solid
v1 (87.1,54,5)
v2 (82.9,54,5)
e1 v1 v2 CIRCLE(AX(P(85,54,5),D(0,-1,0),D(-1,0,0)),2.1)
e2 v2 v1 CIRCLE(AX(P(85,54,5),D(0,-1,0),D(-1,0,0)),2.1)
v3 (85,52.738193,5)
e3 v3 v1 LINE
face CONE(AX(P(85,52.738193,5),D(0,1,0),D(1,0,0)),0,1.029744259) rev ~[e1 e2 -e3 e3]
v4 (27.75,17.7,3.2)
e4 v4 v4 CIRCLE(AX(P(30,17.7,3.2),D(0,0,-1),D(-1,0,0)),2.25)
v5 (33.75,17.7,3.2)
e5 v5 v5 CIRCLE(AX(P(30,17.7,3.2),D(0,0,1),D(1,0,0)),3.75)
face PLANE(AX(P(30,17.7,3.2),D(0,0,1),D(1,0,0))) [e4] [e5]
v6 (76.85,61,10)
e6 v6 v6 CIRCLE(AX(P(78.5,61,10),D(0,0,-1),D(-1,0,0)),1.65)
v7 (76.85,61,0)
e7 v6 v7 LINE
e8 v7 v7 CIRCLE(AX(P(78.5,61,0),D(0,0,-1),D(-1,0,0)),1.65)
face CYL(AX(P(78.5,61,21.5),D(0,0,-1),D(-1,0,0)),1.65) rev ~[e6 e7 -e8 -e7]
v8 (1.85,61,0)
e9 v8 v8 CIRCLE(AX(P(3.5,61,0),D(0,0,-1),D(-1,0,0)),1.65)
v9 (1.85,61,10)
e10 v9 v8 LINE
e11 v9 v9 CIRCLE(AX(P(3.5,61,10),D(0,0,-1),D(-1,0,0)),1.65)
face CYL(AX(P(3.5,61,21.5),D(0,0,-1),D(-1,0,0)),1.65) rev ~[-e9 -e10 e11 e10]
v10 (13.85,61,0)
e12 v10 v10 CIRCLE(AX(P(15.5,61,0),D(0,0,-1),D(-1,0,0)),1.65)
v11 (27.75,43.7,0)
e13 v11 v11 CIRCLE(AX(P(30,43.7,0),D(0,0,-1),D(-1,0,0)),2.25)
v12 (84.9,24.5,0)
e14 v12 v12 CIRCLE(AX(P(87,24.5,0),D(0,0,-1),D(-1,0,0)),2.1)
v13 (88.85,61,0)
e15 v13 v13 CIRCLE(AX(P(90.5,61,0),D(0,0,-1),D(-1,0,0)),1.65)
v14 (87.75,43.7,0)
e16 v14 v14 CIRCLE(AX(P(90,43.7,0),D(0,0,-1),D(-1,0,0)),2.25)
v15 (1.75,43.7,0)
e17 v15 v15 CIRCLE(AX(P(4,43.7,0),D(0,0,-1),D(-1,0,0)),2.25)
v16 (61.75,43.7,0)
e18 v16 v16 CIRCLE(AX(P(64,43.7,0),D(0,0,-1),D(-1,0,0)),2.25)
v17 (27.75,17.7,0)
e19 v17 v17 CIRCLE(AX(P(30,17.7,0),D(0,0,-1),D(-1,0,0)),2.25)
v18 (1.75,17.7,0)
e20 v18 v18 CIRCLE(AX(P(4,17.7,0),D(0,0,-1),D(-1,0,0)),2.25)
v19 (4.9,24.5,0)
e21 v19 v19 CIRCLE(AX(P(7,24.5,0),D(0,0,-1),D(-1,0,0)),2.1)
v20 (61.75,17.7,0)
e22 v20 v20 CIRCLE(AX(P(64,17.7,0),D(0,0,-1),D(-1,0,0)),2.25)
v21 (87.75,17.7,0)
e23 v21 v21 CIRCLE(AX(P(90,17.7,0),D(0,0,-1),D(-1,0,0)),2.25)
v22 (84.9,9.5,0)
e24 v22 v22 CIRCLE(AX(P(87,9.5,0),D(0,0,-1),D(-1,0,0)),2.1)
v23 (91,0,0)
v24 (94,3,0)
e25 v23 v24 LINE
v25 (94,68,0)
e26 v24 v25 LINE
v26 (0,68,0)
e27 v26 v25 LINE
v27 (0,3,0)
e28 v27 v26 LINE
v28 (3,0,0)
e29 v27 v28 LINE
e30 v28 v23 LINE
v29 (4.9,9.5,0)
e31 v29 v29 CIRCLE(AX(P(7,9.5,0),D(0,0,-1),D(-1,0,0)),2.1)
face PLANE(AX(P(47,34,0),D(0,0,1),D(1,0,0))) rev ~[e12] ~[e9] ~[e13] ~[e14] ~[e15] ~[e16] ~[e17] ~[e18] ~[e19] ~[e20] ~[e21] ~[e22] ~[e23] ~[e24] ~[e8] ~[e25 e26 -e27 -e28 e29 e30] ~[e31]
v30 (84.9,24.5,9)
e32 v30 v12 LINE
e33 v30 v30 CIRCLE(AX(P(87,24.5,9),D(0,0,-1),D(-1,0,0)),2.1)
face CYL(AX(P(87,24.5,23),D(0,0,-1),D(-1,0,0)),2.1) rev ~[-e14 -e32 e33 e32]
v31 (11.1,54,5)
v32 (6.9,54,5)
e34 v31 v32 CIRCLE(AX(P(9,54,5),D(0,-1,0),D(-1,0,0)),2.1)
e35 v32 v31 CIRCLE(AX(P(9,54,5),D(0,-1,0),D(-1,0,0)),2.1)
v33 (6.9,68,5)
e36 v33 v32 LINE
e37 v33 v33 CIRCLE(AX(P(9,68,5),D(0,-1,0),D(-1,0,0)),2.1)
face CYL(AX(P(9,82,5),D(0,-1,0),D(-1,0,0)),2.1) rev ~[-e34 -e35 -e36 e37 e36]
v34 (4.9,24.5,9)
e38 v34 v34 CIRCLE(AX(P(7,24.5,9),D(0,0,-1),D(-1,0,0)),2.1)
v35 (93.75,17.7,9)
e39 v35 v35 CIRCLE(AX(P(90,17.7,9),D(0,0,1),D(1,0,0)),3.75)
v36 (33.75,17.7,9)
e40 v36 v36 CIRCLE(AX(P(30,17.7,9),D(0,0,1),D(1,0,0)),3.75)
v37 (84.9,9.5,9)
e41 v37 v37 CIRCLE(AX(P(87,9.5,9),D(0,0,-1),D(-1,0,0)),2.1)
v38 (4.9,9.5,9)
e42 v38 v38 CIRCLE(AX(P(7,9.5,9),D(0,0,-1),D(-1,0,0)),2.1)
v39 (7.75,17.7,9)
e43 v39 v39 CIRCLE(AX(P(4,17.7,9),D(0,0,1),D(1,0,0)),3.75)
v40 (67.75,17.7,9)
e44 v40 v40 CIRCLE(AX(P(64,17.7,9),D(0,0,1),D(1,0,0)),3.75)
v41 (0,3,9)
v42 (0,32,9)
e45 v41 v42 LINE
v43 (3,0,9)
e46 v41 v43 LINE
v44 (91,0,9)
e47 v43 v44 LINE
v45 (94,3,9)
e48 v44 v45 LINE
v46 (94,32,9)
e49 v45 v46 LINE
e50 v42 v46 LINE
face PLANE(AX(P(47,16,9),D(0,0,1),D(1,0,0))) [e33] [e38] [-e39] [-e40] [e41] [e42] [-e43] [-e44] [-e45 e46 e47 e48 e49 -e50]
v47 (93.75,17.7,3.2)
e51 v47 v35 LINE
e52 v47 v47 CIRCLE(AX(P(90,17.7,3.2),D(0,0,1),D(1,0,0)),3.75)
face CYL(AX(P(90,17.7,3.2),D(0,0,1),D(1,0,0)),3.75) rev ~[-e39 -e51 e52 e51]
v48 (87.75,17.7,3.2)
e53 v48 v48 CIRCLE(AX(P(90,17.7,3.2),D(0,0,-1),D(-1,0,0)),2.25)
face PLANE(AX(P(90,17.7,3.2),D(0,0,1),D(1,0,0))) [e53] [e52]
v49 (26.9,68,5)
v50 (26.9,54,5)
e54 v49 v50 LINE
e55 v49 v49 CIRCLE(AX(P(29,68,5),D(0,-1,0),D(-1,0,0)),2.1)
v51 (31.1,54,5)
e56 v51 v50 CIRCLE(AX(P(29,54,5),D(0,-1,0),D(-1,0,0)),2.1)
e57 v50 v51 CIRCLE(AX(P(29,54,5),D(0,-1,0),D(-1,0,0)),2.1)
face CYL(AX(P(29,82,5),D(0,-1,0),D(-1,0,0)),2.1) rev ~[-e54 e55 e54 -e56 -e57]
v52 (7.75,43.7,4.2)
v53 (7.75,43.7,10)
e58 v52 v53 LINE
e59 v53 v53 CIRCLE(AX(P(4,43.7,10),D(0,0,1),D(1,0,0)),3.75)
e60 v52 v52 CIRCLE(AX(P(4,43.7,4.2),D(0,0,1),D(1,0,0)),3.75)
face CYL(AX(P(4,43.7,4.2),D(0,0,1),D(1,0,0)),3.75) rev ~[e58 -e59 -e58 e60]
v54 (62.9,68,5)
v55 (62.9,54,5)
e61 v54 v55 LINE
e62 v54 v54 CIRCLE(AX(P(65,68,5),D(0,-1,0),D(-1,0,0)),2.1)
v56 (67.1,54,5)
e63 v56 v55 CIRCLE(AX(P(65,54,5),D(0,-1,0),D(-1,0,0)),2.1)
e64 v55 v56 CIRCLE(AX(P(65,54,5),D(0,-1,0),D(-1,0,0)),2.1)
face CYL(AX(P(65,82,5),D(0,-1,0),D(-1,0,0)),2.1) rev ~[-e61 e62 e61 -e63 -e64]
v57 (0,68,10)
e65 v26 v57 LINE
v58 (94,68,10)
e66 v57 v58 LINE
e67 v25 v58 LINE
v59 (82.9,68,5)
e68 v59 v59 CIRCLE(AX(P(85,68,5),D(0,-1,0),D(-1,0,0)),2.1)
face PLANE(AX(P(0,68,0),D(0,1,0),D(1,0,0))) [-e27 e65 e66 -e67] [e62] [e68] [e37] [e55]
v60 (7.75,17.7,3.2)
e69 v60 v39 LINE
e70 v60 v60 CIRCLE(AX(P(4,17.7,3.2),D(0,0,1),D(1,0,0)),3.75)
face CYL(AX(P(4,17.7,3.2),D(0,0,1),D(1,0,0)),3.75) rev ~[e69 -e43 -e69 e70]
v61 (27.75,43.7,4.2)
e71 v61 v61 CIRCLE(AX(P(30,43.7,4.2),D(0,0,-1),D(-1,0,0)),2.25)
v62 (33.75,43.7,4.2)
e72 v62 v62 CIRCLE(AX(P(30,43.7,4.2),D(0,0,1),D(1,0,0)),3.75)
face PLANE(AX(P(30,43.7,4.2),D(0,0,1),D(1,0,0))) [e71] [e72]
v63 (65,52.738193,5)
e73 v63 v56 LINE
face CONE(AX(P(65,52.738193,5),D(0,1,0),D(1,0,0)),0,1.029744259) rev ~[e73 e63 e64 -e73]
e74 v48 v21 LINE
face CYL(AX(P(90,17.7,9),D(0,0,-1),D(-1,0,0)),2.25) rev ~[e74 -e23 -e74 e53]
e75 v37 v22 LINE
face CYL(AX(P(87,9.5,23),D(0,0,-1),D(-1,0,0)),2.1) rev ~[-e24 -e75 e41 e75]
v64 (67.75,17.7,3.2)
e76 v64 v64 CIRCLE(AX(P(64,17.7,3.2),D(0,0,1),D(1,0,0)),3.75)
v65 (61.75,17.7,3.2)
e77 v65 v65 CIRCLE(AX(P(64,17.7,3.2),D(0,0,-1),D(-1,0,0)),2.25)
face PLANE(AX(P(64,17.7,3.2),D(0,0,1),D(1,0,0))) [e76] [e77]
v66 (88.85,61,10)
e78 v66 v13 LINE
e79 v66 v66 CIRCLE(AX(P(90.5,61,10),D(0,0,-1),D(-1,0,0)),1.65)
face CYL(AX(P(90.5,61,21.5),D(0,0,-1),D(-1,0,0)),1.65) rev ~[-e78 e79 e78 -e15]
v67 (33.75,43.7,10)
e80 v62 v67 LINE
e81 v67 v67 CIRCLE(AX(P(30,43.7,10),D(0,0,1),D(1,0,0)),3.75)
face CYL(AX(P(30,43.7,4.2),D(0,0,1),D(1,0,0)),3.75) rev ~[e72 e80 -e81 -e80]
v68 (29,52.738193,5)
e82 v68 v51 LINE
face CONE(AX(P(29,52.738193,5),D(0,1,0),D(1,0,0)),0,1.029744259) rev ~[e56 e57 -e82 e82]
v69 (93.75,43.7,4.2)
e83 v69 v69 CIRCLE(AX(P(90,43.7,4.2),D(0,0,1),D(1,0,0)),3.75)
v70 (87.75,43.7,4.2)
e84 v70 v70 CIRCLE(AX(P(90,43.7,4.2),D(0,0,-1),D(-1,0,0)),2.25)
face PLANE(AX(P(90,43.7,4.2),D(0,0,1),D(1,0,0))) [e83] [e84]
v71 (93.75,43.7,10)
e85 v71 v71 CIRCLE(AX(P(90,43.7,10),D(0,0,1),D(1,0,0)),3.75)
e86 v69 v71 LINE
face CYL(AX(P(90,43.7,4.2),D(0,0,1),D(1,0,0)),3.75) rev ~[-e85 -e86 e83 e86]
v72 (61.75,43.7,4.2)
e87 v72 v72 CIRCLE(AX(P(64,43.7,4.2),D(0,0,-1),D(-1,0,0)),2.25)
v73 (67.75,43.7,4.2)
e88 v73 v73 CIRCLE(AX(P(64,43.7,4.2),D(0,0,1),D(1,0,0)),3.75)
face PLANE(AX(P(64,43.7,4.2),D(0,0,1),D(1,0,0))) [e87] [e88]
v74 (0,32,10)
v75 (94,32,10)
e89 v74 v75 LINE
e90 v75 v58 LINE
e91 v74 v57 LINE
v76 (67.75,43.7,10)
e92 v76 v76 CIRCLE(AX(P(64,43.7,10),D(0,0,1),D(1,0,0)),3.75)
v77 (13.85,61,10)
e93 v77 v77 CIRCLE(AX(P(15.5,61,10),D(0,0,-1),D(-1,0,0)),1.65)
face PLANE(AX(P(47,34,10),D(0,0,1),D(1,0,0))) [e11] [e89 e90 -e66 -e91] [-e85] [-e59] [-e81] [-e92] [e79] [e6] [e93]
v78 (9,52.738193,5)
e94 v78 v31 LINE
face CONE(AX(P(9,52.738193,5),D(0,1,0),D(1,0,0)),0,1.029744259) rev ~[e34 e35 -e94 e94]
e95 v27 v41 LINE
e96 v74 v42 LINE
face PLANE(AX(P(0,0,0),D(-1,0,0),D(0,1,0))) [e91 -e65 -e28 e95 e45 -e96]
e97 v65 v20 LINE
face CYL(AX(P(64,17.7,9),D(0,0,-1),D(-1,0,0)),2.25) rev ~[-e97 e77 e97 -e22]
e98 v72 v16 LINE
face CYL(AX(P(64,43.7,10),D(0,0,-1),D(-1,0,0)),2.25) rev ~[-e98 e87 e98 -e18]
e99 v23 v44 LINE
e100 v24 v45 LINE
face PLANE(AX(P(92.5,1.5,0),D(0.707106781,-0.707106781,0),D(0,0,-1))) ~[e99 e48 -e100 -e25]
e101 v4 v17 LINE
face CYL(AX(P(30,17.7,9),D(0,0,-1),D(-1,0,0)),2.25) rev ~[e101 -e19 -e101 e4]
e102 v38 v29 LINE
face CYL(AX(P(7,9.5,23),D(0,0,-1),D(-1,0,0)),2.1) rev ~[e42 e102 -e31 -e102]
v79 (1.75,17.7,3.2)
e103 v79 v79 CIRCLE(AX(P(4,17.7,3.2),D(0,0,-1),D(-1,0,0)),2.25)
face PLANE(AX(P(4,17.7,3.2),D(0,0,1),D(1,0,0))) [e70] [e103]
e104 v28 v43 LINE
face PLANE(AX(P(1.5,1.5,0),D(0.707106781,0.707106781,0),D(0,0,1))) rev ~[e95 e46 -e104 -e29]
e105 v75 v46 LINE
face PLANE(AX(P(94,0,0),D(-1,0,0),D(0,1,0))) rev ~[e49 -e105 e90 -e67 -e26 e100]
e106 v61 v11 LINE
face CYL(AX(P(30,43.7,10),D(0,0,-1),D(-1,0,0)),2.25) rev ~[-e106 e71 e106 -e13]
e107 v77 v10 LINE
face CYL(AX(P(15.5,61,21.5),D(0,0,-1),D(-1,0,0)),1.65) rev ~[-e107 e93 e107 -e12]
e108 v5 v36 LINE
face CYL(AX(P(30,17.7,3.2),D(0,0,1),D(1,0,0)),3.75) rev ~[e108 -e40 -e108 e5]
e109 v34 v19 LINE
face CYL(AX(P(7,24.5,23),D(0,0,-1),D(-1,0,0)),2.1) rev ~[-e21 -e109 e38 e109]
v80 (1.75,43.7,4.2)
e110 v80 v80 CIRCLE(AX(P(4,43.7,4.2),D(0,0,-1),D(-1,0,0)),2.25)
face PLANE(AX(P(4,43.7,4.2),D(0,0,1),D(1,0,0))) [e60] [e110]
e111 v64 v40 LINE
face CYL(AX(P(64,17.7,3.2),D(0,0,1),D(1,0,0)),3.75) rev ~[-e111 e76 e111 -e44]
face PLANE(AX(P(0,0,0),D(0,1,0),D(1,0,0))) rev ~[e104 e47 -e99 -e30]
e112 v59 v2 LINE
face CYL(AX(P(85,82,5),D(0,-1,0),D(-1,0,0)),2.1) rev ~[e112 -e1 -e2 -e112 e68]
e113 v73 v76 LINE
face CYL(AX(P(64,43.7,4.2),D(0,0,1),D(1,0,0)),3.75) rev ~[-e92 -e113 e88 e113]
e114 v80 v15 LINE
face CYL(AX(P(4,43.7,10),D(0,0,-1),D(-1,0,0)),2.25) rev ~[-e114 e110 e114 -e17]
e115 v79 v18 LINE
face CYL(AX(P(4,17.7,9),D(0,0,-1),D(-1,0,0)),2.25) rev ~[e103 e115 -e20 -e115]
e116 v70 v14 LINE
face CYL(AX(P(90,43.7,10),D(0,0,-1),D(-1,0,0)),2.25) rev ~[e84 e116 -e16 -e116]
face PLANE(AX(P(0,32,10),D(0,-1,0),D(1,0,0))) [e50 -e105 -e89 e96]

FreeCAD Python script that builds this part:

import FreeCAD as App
import Part
import Sketcher

V = App.Vector
Q = App.Units.Quantity


def edges_at(feature, points):
    """Names of the edges that pass closest to the given points."""
    edges = feature.Shape.Edges
    near = lambda p: min(range(len(edges)), key=lambda i: edges[i].distToShape(Part.Vertex(*p))[0])
    return sorted({f"Edge{near(p) + 1}" for p in points})

doc = App.newDocument("Part")
body = doc.addObject("PartDesign::Body", "Body")

sketch1 = body.newObject("Sketcher::SketchObject", "Sketch")
sketch1.AttachmentSupport = (doc.getObject("XY_Plane"), [""])
sketch1.MapMode = "FlatFace"
sketch1.addGeometry([
    Part.LineSegment(V(0, 68, 0), V(0, 0, 0)),
    Part.LineSegment(V(0, 0, 0), V(94, 0, 0)),
    Part.LineSegment(V(94, 0, 0), V(94, 68, 0)),
    Part.LineSegment(V(94, 68, 0), V(0, 68, 0)),
], False)
sketch1.addConstraint([
    Sketcher.Constraint("Coincident", 0, 2, 1, 1),
    Sketcher.Constraint("Coincident", 1, 2, 2, 1),
    Sketcher.Constraint("Coincident", 2, 2, 3, 1),
    Sketcher.Constraint("Coincident", 3, 2, 0, 1),
    Sketcher.Constraint("Vertical", 0),
    Sketcher.Constraint("Horizontal", 1),
    Sketcher.Constraint("Vertical", 2),
    Sketcher.Constraint("Horizontal", 3),
    Sketcher.Constraint("Coincident", 0, 2, -1, 1),
    Sketcher.Constraint("DistanceX", 1, 1, 1, 2, Q("94 mm")),
    Sketcher.Constraint("DistanceY", 0, 2, 0, 1, Q("68 mm")),
])
pad1 = body.newObject("PartDesign::Pad", "Pad")
pad1.Profile = sketch1
pad1.Length = 10

sketch2 = body.newObject("Sketcher::SketchObject", "Sketch001")
sketch2.AttachmentSupport = (doc.getObject("XZ_Plane"), [""])
sketch2.MapMode = "FlatFace"
sketch2.AttachmentOffset = App.Placement(V(0, 0, -68), App.Rotation())
sketch2.addGeometry([
    Part.Circle(V(9, 5, 0), V(0, 0, 1), 2.1),
    Part.Circle(V(29, 5, 0), V(0, 0, 1), 2.1),
    Part.Circle(V(65, 5, 0), V(0, 0, 1), 2.1),
    Part.Circle(V(85, 5, 0), V(0, 0, 1), 2.1),
], False)
sketch2.addConstraint([
    Sketcher.Constraint("Equal", 0, 1),
    Sketcher.Constraint("Equal", 1, 2),
    Sketcher.Constraint("Equal", 2, 3),
    Sketcher.Constraint("Horizontal", 0, 3, 1, 3),
    Sketcher.Constraint("Horizontal", 1, 3, 2, 3),
    Sketcher.Constraint("Horizontal", 2, 3, 3, 3),
    Sketcher.Constraint("Diameter", 0, Q("4.2 mm")),
    Sketcher.Constraint("DistanceX", -1, 1, 0, 3, Q("9 mm")),
    Sketcher.Constraint("DistanceY", -1, 1, 0, 3, Q("5 mm")),
    Sketcher.Constraint("DistanceX", -1, 1, 1, 3, Q("29 mm")),
    Sketcher.Constraint("DistanceX", -1, 1, 2, 3, Q("65 mm")),
    Sketcher.Constraint("DistanceX", -1, 1, 3, 3, Q("85 mm")),
])
doc.recompute()
hole = body.newObject("PartDesign::Hole", "Hole")
hole.Profile = sketch2
hole.ThreadType = "None"
hole.Diameter = 4.2
hole.DepthType = "Dimension"
hole.Depth = 14
hole.DrillPoint = "Angled"
hole.DrillPointAngle = 118
hole.Reversed = True

sketch3 = body.newObject("Sketcher::SketchObject", "Sketch002")
sketch3.AttachmentSupport = (doc.getObject("XY_Plane"), [""])
sketch3.MapMode = "FlatFace"
sketch3.AttachmentOffset = App.Placement(V(0, 0, 10), App.Rotation())
sketch3.addGeometry([
    Part.LineSegment(V(0, 32, 0), V(0, 0, 0)),
    Part.LineSegment(V(0, 0, 0), V(94, 0, 0)),
    Part.LineSegment(V(94, 0, 0), V(94, 32, 0)),
    Part.LineSegment(V(94, 32, 0), V(0, 32, 0)),
], False)
sketch3.addConstraint([
    Sketcher.Constraint("Coincident", 0, 2, 1, 1),
    Sketcher.Constraint("Coincident", 1, 2, 2, 1),
    Sketcher.Constraint("Coincident", 2, 2, 3, 1),
    Sketcher.Constraint("Coincident", 3, 2, 0, 1),
    Sketcher.Constraint("Vertical", 0),
    Sketcher.Constraint("Horizontal", 1),
    Sketcher.Constraint("Vertical", 2),
    Sketcher.Constraint("Horizontal", 3),
    Sketcher.Constraint("Coincident", 0, 2, -1, 1),
    Sketcher.Constraint("DistanceX", 1, 1, 1, 2, Q("94 mm")),
    Sketcher.Constraint("DistanceY", 0, 2, 0, 1, Q("32 mm")),
])
pocket1 = body.newObject("PartDesign::Pocket", "Pocket")
pocket1.Profile = sketch3
pocket1.Length = 1
doc.recompute()

chamfer = body.newObject("PartDesign::Chamfer", "Chamfer")
chamfer.Base = (pocket1, edges_at(pocket1, [(0, 0, 4.5), (94, 0, 4.5)]))
chamfer.Size = 3

sketch4 = body.newObject("Sketcher::SketchObject", "Sketch003")
sketch4.AttachmentSupport = (doc.getObject("XY_Plane"), [""])
sketch4.MapMode = "FlatFace"
sketch4.AttachmentOffset = App.Placement(V(0, 0, 9), App.Rotation())
sketch4.addGeometry([
    Part.Circle(V(4, 17.7, 0), V(0, 0, 1), 2.25),
    Part.Circle(V(30, 17.7, 0), V(0, 0, 1), 2.25),
    Part.Circle(V(64, 17.7, 0), V(0, 0, 1), 2.25),
    Part.Circle(V(90, 17.7, 0), V(0, 0, 1), 2.25),
], False)
sketch4.addConstraint([
    Sketcher.Constraint("Equal", 0, 1),
    Sketcher.Constraint("Equal", 1, 2),
    Sketcher.Constraint("Equal", 2, 3),
    Sketcher.Constraint("Horizontal", 0, 3, 1, 3),
    Sketcher.Constraint("Horizontal", 1, 3, 2, 3),
    Sketcher.Constraint("Horizontal", 2, 3, 3, 3),
    Sketcher.Constraint("Diameter", 0, Q("4.5 mm")),
    Sketcher.Constraint("DistanceX", -1, 1, 0, 3, Q("4 mm")),
    Sketcher.Constraint("DistanceX", -1, 1, 1, 3, Q("30 mm")),
    Sketcher.Constraint("DistanceX", -1, 1, 2, 3, Q("64 mm")),
    Sketcher.Constraint("DistanceX", -1, 1, 3, 3, Q("90 mm")),
    Sketcher.Constraint("DistanceY", -1, 1, 0, 3, Q("17.7 mm")),
])
doc.recompute()
hole2 = body.newObject("PartDesign::Hole", "Hole001")
hole2.Profile = sketch4
hole2.ThreadType = "None"
hole2.Diameter = 4.5
hole2.DepthType = "ThroughAll"
hole2.HoleCutType = "Counterbore"
hole2.HoleCutDiameter = 7.5
hole2.HoleCutDepth = 5.8

sketch5 = body.newObject("Sketcher::SketchObject", "Sketch004")
sketch5.AttachmentSupport = (doc.getObject("XY_Plane"), [""])
sketch5.MapMode = "FlatFace"
sketch5.AttachmentOffset = App.Placement(V(0, 0, 9), App.Rotation())
sketch5.addGeometry([
    Part.Circle(V(7, 24.5, 0), V(0, 0, 1), 2.1),
    Part.Circle(V(7, 9.5, 0), V(0, 0, 1), 2.1),
    Part.Circle(V(87, 24.5, 0), V(0, 0, 1), 2.1),
    Part.Circle(V(87, 9.5, 0), V(0, 0, 1), 2.1),
], False)
sketch5.addConstraint([
    Sketcher.Constraint("Equal", 0, 1),
    Sketcher.Constraint("Equal", 1, 2),
    Sketcher.Constraint("Equal", 2, 3),
    Sketcher.Constraint("Horizontal", 0, 3, 2, 3),
    Sketcher.Constraint("Horizontal", 1, 3, 3, 3),
    Sketcher.Constraint("Vertical", 0, 3, 1, 3),
    Sketcher.Constraint("Vertical", 2, 3, 3, 3),
    Sketcher.Constraint("Diameter", 0, Q("4.2 mm")),
    Sketcher.Constraint("DistanceX", -1, 1, 0, 3, Q("7 mm")),
    Sketcher.Constraint("DistanceX", -1, 1, 2, 3, Q("87 mm")),
    Sketcher.Constraint("DistanceY", 1, 3, 0, 3, Q("15 mm")),
    Sketcher.Constraint("DistanceY", -1, 1, 0, 3, Q("24.5 mm")),
])
doc.recompute()
hole3 = body.newObject("PartDesign::Hole", "Hole002")
hole3.Profile = sketch5
hole3.ThreadType = "None"
hole3.Diameter = 4.2
hole3.DepthType = "Dimension"
hole3.Depth = 14
hole3.DrillPoint = "Angled"
hole3.DrillPointAngle = 118

sketch6 = body.newObject("Sketcher::SketchObject", "Sketch005")
sketch6.AttachmentSupport = (doc.getObject("XY_Plane"), [""])
sketch6.MapMode = "FlatFace"
sketch6.AttachmentOffset = App.Placement(V(0, 0, 10), App.Rotation())
sketch6.addGeometry([
    Part.Circle(V(3.5, 61, 0), V(0, 0, 1), 1.65),
    Part.Circle(V(15.5, 61, 0), V(0, 0, 1), 1.65),
    Part.Circle(V(78.5, 61, 0), V(0, 0, 1), 1.65),
    Part.Circle(V(90.5, 61, 0), V(0, 0, 1), 1.65),
], False)
sketch6.addConstraint([
    Sketcher.Constraint("Equal", 0, 1),
    Sketcher.Constraint("Equal", 1, 2),
    Sketcher.Constraint("Equal", 2, 3),
    Sketcher.Constraint("Horizontal", 0, 3, 1, 3),
    Sketcher.Constraint("Horizontal", 1, 3, 2, 3),
    Sketcher.Constraint("Horizontal", 2, 3, 3, 3),
    Sketcher.Constraint("Diameter", 0, Q("3.3 mm")),
    Sketcher.Constraint("DistanceY", -1, 1, 0, 3, Q("61 mm")),
    Sketcher.Constraint("DistanceX", 0, 3, 1, 3, Q("12 mm")),
    Sketcher.Constraint("DistanceX", 1, 3, 2, 3, Q("63 mm")),
    Sketcher.Constraint("DistanceX", 2, 3, 3, 3, Q("12 mm")),
    Sketcher.Constraint("DistanceX", -1, 1, 0, 3, Q("3.5 mm")),
])
doc.recompute()
hole4 = body.newObject("PartDesign::Hole", "Hole003")
hole4.Profile = sketch6
hole4.ThreadType = "None"
hole4.Diameter = 3.3
hole4.DepthType = "Dimension"
hole4.Depth = 11.5
hole4.DrillPoint = "Angled"
hole4.DrillPointAngle = 118

sketch7 = body.newObject("Sketcher::SketchObject", "Sketch006")
sketch7.AttachmentSupport = (doc.getObject("XY_Plane"), [""])
sketch7.MapMode = "FlatFace"
sketch7.AttachmentOffset = App.Placement(V(0, 0, 10), App.Rotation())
sketch7.addGeometry([
    Part.Circle(V(4, 43.7, 0), V(0, 0, 1), 2.25),
    Part.Circle(V(30, 43.7, 0), V(0, 0, 1), 2.25),
    Part.Circle(V(64, 43.7, 0), V(0, 0, 1), 2.25),
    Part.Circle(V(90, 43.7, 0), V(0, 0, 1), 2.25),
], False)
sketch7.addConstraint([
    Sketcher.Constraint("Equal", 0, 1),
    Sketcher.Constraint("Equal", 1, 2),
    Sketcher.Constraint("Equal", 2, 3),
    Sketcher.Constraint("Horizontal", 0, 3, 1, 3),
    Sketcher.Constraint("Horizontal", 1, 3, 2, 3),
    Sketcher.Constraint("Horizontal", 2, 3, 3, 3),
    Sketcher.Constraint("Diameter", 0, Q("4.5 mm")),
    Sketcher.Constraint("DistanceX", -1, 1, 0, 3, Q("4 mm")),
    Sketcher.Constraint("DistanceX", -1, 1, 1, 3, Q("30 mm")),
    Sketcher.Constraint("DistanceX", -1, 1, 2, 3, Q("64 mm")),
    Sketcher.Constraint("DistanceX", -1, 1, 3, 3, Q("90 mm")),
    Sketcher.Constraint("DistanceY", -1, 1, 0, 3, Q("43.7 mm")),
])
doc.recompute()
hole5 = body.newObject("PartDesign::Hole", "Hole004")
hole5.Profile = sketch7
hole5.ThreadType = "None"
hole5.Diameter = 4.5
hole5.DepthType = "ThroughAll"
hole5.HoleCutType = "Counterbore"
hole5.HoleCutDiameter = 7.5
hole5.HoleCutDepth = 5.8

doc.recompute()
